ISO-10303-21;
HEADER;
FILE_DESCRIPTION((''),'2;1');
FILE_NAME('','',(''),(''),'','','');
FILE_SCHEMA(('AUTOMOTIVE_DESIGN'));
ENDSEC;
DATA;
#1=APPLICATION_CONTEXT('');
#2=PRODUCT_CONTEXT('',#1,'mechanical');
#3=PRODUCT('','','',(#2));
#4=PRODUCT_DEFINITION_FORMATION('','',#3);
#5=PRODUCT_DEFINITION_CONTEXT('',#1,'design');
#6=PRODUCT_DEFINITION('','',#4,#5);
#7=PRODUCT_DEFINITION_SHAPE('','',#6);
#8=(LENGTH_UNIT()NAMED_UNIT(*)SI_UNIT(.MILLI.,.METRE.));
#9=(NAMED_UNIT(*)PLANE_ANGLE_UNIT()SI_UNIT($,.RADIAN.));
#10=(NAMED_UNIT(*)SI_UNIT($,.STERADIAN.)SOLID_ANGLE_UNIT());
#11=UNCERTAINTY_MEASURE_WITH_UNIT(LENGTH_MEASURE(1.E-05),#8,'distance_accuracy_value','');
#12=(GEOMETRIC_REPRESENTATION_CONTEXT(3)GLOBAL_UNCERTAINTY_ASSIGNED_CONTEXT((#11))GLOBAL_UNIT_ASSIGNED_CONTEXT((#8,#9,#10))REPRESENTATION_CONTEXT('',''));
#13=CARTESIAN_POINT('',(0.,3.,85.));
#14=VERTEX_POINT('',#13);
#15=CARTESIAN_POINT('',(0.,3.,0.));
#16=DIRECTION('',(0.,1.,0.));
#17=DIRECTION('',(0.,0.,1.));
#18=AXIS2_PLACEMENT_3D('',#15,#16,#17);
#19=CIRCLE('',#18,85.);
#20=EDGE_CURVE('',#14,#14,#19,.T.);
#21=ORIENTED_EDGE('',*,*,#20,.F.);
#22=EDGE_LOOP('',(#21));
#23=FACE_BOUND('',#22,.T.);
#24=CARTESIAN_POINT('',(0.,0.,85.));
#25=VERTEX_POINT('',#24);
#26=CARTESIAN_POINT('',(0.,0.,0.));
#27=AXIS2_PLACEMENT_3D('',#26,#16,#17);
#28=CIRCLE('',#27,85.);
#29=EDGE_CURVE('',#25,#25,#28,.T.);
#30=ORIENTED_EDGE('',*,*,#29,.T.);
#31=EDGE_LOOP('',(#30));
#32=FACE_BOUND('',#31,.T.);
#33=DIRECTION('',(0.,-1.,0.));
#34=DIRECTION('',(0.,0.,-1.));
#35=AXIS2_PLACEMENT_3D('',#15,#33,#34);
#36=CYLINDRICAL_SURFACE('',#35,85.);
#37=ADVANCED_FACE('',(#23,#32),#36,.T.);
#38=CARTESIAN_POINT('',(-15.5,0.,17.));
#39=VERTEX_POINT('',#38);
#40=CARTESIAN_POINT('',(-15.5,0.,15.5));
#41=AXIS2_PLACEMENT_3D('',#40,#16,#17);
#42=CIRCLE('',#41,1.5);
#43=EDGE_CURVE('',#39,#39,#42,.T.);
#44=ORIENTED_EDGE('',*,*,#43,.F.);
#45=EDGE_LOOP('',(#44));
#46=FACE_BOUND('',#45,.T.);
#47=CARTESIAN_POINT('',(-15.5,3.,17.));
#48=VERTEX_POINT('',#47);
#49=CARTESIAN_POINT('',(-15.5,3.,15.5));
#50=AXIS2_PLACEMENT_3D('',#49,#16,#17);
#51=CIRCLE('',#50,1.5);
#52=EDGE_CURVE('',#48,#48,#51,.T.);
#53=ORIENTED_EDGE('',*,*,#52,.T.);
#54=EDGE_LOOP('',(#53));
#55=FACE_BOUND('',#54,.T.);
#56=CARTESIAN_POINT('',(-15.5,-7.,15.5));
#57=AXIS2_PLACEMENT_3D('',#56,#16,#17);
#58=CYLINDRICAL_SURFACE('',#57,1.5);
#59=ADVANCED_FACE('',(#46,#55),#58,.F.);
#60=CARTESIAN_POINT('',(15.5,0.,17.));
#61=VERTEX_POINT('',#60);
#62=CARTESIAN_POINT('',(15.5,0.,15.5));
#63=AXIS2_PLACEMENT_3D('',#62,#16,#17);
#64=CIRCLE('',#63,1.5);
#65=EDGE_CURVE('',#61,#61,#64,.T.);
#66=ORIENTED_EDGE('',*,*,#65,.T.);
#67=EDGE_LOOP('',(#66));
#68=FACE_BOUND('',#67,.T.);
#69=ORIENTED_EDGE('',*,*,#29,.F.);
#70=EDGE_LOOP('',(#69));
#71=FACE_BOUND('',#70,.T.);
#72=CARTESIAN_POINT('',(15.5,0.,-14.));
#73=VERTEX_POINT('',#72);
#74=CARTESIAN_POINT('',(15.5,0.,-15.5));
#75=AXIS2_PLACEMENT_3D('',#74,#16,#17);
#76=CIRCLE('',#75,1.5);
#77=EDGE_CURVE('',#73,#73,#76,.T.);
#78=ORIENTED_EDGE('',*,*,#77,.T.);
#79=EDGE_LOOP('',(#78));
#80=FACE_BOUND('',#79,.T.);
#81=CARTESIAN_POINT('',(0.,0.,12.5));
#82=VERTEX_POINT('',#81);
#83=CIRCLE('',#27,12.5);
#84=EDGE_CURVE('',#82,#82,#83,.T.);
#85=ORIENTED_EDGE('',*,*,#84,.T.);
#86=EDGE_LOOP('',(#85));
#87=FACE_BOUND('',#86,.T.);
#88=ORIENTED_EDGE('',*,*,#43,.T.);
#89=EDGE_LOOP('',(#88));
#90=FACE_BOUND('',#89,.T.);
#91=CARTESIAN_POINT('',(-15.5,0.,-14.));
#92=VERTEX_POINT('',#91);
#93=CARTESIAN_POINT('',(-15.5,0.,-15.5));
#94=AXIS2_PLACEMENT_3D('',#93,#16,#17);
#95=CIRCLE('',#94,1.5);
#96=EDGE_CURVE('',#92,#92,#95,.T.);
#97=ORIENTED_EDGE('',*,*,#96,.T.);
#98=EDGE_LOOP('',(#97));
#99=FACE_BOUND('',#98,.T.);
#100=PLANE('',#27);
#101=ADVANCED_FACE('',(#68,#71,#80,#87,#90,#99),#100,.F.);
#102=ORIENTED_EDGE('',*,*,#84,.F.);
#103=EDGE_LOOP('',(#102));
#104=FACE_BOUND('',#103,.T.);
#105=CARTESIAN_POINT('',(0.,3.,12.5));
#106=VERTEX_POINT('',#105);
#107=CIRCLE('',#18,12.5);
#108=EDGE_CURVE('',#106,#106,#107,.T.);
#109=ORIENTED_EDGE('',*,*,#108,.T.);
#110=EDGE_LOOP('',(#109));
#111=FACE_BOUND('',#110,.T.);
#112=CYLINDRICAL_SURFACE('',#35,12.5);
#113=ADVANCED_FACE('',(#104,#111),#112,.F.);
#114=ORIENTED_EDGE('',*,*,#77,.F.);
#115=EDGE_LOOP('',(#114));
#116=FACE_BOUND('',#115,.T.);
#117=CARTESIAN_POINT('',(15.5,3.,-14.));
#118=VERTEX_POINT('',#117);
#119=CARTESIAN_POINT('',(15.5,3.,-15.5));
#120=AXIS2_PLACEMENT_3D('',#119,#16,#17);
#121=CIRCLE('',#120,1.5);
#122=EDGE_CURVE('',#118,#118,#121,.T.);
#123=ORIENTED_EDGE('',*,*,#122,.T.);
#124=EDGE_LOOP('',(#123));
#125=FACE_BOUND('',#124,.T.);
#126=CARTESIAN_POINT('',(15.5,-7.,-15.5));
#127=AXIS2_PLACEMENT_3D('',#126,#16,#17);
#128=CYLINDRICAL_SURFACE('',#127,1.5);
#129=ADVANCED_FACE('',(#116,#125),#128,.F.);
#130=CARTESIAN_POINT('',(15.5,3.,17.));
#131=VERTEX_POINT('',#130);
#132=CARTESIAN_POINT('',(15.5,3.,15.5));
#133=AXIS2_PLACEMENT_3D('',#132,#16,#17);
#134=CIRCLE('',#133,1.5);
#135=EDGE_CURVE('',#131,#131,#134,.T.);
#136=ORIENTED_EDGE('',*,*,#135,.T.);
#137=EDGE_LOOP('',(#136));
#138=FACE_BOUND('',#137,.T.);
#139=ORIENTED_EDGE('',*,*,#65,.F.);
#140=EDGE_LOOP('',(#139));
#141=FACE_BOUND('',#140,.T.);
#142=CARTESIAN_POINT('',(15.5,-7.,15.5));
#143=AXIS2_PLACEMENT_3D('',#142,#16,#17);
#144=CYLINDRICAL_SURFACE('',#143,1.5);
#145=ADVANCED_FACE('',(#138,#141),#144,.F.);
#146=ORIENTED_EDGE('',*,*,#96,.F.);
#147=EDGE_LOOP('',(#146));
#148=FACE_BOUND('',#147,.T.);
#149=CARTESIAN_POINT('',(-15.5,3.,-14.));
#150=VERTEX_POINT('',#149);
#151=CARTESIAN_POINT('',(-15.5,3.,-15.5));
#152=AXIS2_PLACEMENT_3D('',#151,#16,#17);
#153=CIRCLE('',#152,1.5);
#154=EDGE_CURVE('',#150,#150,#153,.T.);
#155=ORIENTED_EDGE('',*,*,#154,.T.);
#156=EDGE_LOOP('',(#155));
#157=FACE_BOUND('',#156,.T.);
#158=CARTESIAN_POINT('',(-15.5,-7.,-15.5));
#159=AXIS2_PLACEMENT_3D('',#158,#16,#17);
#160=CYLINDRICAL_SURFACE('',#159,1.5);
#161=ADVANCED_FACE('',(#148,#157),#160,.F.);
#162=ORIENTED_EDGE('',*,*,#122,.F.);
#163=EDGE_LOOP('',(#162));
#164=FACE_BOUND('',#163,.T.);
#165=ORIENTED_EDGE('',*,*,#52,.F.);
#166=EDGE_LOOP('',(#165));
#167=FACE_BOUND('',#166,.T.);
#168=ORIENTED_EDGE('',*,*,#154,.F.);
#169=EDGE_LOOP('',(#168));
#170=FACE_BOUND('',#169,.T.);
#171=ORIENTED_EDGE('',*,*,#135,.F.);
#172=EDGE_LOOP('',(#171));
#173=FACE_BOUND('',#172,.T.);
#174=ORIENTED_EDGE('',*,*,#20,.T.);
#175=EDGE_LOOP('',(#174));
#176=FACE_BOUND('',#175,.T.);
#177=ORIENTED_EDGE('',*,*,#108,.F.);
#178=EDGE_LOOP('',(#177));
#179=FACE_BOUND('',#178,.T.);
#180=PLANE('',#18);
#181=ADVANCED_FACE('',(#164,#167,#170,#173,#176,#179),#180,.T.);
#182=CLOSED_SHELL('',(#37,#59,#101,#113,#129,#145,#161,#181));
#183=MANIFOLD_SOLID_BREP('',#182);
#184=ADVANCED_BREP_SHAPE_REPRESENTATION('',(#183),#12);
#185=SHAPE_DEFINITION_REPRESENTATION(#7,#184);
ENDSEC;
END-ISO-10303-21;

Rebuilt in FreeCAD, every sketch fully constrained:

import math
import FreeCAD as App
import Part
import Sketcher

doc = App.newDocument("Part")
params = doc.addObject("Spreadsheet::Sheet", "Params")
for row, (alias, value) in enumerate([
    ("sketch1_diameter", "170 mm"),
    ("sketch1_diameter2", "25 mm"),
    ("pad1_length", "3 mm"),
    ("sketch2_radius", "1.5 mm"),
    ("pocket1_length", "10 mm"),
], start=1):
    params.set(f"A{row}", alias)
    params.set(f"B{row}", "=" + value)
    params.setAlias(f"B{row}", alias)

body = doc.addObject("PartDesign::Body", "Body")

sketch1 = body.newObject("Sketcher::SketchObject", "Sketch")
sketch1.AttachmentSupport = (doc.getObject("XZ_Plane"), [""])
sketch1.MapMode = "FlatFace"
sketch1.addGeometry([
    Part.Circle(App.Vector(0, 0, 0), App.Vector(0, 0, 1), 85),
    Part.Circle(App.Vector(0, 0, 0), App.Vector(0, 0, 1), 12),
], False)
sketch1.addConstraint([
    Sketcher.Constraint("Coincident", 0, 3, -1, 1),
    Sketcher.Constraint("Coincident", 1, 3, -1, 1),
    Sketcher.Constraint("Diameter", 0, 170.0),
    Sketcher.Constraint("Diameter", 1, 25.0),
])
sketch1.setExpression("Constraints[2]", "Params.sketch1_diameter")
sketch1.setExpression("Constraints[3]", "Params.sketch1_diameter2")
pad1 = body.newObject("PartDesign::Pad", "Pad")
pad1.Profile = sketch1
pad1.setExpression("Length", "Params.pad1_length")
pad1.Reversed = True

sketch2 = body.newObject("Sketcher::SketchObject", "Sketch001")
sketch2.AttachmentSupport = (doc.getObject("XZ_Plane"), [""])
sketch2.MapMode = "FlatFace"
sketch2.AttachmentOffset = App.Placement(App.Vector(0, 0, -3), App.Rotation())
sketch2.addGeometry([
    Part.ArcOfCircle(Part.Circle(App.Vector(-15.5, -15.5, 0), App.Vector(0, 0, 1), 1.5), math.radians(90), math.radians(360)),
    Part.ArcOfCircle(Part.Circle(App.Vector(-15.5, -15.5, 0), App.Vector(0, 0, 1), 1.5), math.radians(0), math.radians(90)),
    Part.ArcOfCircle(Part.Circle(App.Vector(15.5, -15.5, 0), App.Vector(0, 0, 1), 1.5), math.radians(90), math.radians(180)),
    Part.ArcOfCircle(Part.Circle(App.Vector(15.5, -15.5, 0), App.Vector(0, 0, 1), 1.5), math.radians(0), math.radians(90)),
    Part.ArcOfCircle(Part.Circle(App.Vector(15.5, -15.5, 0), App.Vector(0, 0, 1), 1.5), math.radians(180), math.radians(360)),
    Part.ArcOfCircle(Part.Circle(App.Vector(15.5, 15.5, 0), App.Vector(0, 0, 1), 1.5), math.radians(180), math.radians(270)),
    Part.ArcOfCircle(Part.Circle(App.Vector(15.5, 15.5, 0), App.Vector(0, 0, 1), 1.5), math.radians(0), math.radians(180)),
    Part.ArcOfCircle(Part.Circle(App.Vector(15.5, 15.5, 0), App.Vector(0, 0, 1), 1.5), math.radians(-90), math.radians(0)),
    Part.ArcOfCircle(Part.Circle(App.Vector(-15.5, 15.5, 0), App.Vector(0, 0, 1), 1.5), math.radians(-90), math.radians(0)),
    Part.ArcOfCircle(Part.Circle(App.Vector(-15.5, 15.5, 0), App.Vector(0, 0, 1), 1.5), math.radians(0), math.radians(270)),
], False)
sketch2.addConstraint([
    Sketcher.Constraint("Tangent", 0, 1, 1, 2),
    Sketcher.Constraint("Coincident", 1, 1, 0, 2),
    Sketcher.Constraint("Tangent", 2, 1, 3, 2),
    Sketcher.Constraint("Tangent", 3, 1, 4, 2),
    Sketcher.Constraint("Tangent", 4, 1, 2, 2),
    Sketcher.Constraint("Tangent", 5, 1, 6, 2),
    Sketcher.Constraint("Tangent", 6, 1, 7, 2),
    Sketcher.Constraint("Tangent", 7, 1, 5, 2),
    Sketcher.Constraint("Tangent", 8, 1, 9, 2),
    Sketcher.Constraint("Coincident", 9, 1, 8, 2),
    Sketcher.Constraint("Equal", 1, 2),
    Sketcher.Constraint("Equal", 4, 5),
    Sketcher.Constraint("Equal", 7, 8),
    Sketcher.Constraint("Symmetric", 0, 3, 5, 3, -1, 1),
    Sketcher.Constraint("Symmetric", 2, 3, 8, 3, -1, 1),
    Sketcher.Constraint("Symmetric", 0, 3, 2, 3, -2),
    Sketcher.Constraint("Horizontal", 4, 3, 1, 1),
    Sketcher.Constraint("Horizontal", 1, 1, 3, 1),
    Sketcher.Constraint("Horizontal", 3, 1, 4, 1),
    Sketcher.Constraint("Horizontal", 9, 3, 5, 1),
    Sketcher.Constraint("Horizontal", 5, 1, 6, 1),
    Sketcher.Constraint("Horizontal", 6, 1, 9, 1),
    Sketcher.Constraint("Vertical", 9, 3, 0, 1),
    Sketcher.Constraint("Vertical", 7, 3, 2, 1),
    Sketcher.Constraint("Vertical", 2, 1, 7, 1),
    Sketcher.Constraint("Vertical", 0, 1, 8, 1),
    Sketcher.Constraint("Radius", 0, 1.5),
    Sketcher.Constraint("DistanceY", 0, 1, -1, 1, 14.0),
    Sketcher.Constraint("DistanceX", 1, 1, -1, 1, 14.0),
])
sketch2.setExpression("Constraints[26]", "Params.sketch2_radius")
pocket1 = body.newObject("PartDesign::Pocket", "Pocket")
pocket1.Profile = sketch2
pocket1.setExpression("Length", "Params.pocket1_length")
pocket1.Reversed = True

doc.recompute()
